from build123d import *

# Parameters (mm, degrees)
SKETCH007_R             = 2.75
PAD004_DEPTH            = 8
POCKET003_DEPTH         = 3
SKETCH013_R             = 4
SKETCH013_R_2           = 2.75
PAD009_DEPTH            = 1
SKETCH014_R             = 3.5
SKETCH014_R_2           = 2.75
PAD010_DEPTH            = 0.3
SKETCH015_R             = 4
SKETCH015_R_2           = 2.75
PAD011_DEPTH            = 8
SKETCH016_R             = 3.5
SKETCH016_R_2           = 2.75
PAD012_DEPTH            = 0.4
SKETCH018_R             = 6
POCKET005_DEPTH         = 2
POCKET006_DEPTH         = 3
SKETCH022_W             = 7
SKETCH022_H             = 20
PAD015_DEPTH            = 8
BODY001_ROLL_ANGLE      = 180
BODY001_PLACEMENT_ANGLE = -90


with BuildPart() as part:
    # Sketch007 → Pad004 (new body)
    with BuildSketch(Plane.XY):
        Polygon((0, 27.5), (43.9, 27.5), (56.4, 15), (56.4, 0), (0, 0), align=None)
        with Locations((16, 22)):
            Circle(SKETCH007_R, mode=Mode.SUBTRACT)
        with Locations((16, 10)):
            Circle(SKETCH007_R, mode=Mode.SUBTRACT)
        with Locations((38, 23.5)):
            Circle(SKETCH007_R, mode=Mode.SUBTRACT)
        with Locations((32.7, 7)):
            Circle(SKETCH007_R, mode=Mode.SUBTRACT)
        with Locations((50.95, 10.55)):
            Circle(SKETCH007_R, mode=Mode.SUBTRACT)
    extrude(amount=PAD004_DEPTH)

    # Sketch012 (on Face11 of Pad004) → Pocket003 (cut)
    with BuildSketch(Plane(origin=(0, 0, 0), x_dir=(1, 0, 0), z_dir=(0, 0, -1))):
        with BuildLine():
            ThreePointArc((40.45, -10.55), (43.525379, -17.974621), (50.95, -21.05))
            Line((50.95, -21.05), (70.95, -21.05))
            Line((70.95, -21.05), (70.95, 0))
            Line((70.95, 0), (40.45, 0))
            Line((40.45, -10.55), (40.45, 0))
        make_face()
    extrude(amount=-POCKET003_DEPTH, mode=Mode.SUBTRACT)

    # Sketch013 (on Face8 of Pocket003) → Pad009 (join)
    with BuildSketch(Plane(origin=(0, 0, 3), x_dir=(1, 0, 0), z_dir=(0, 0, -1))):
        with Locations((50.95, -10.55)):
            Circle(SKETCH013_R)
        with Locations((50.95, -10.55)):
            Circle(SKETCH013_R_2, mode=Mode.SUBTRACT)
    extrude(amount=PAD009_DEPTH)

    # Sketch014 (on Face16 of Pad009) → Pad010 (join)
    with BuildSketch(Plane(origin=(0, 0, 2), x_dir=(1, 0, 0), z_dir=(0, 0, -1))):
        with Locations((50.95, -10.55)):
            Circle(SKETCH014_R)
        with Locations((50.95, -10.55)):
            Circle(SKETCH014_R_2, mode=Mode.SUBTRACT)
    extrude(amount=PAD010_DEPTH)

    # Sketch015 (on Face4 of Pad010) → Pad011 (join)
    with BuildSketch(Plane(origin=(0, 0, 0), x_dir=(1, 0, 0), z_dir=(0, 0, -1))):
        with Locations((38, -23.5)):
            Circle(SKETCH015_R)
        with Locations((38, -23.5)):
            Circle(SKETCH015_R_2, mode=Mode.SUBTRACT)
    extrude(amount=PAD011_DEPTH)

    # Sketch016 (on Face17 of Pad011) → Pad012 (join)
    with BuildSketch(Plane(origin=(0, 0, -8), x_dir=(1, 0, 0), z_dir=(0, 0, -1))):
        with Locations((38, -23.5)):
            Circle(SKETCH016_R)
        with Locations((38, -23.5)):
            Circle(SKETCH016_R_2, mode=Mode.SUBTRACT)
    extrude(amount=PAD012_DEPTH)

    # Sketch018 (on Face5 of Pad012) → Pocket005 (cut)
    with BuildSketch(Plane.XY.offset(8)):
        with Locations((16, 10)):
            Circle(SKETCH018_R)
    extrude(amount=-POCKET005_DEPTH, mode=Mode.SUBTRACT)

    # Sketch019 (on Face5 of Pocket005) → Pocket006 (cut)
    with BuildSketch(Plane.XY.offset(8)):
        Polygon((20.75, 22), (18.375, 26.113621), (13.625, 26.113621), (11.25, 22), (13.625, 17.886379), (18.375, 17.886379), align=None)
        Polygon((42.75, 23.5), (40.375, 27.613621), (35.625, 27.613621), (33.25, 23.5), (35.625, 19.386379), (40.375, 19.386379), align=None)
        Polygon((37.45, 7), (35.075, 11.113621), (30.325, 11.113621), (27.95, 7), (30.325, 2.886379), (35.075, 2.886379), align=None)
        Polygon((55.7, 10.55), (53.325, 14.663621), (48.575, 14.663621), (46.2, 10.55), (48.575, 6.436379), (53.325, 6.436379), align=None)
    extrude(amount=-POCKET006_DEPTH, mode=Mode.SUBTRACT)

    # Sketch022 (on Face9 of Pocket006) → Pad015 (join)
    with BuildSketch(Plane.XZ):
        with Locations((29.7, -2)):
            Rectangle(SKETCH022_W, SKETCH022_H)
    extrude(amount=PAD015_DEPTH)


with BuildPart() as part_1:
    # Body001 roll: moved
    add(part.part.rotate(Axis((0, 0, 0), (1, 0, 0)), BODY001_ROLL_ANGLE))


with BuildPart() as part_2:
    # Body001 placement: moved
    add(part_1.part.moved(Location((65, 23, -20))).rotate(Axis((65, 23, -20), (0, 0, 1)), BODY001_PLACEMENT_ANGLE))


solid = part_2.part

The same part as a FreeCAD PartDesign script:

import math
import FreeCAD as App
import Part
import Sketcher

V = App.Vector
Q = App.Units.Quantity


def add_polygon(sketch, points):
    """Adds a closed chain of lines whose ends are joined by coincident constraints."""
    first, n = sketch.GeometryCount, len(points)
    for a, b in zip(points, points[1:] + points[:1]):
        sketch.addGeometry(Part.LineSegment(App.Vector(*a, 0), App.Vector(*b, 0)), False)
    for i in range(n):
        sketch.addConstraint(Sketcher.Constraint("Coincident", first + i, 2, first + (i + 1) % n, 1))

doc = App.newDocument("Part")
params = doc.addObject("Spreadsheet::Sheet", "Params")
for row, (alias, value) in enumerate([
    ("sketch1_diameter", "5.5 mm"),
    ("sketch1_height", "15 mm"),
    ("sketch1_width", "43.9 mm"),
    ("sketch1_width2", "56.4 mm"),
    ("pad1_length", "8 mm"),
    ("sketch2_radius", "10.500001 mm"),
    ("sketch2_width", "20 mm"),
    ("sketch2_height", "21.05 mm"),
    ("pocket1_length", "3 mm"),
    ("sketch3_diameter", "8 mm"),
    ("sketch3_diameter2", "5.5 mm"),
    ("pad2_length", "1 mm"),
    ("sketch4_diameter", "7 mm"),
    ("sketch4_diameter2", "5.5 mm"),
    ("pad3_length", "0.3 mm"),
    ("sketch5_diameter", "8 mm"),
    ("sketch5_diameter2", "5.5 mm"),
    ("pad4_length", "8 mm"),
    ("sketch6_diameter", "7 mm"),
    ("sketch6_diameter2", "5.5 mm"),
    ("pad5_length", "0.4 mm"),
    ("sketch7_diameter", "12 mm"),
    ("pocket2_length", "2 mm"),
    ("sketch8_width", "4.75 mm"),
    ("pocket3_length", "3 mm"),
    ("sketch9_width", "7 mm"),
    ("sketch9_height", "20 mm"),
    ("pad6_length", "8 mm"),
], start=1):
    params.set(f"A{row}", alias)
    params.set(f"B{row}", "=" + value)
    params.setAlias(f"B{row}", alias)

body = doc.addObject("PartDesign::Body", "Body")

# Sketch on XY plane
sketch1 = body.newObject("Sketcher::SketchObject", "Sketch")
sketch1.AttachmentSupport = (doc.getObject("XY_Plane"), [""])
sketch1.MapMode = "FlatFace"
add_polygon(sketch1, [(43.9, 27.5), (0, 27.5), (0, 0), (56.4, 0), (56.4, 15)])  # lines 0-4
sketch1.addGeometry(Part.Circle(V(51, 10.6, 0), V(0, 0, 1), 2.8), False)  # 5
sketch1.addGeometry(Part.Circle(V(32.7, 7, 0), V(0, 0, 1), 2.8), False)  # 6
sketch1.addGeometry(Part.Circle(V(16, 10, 0), V(0, 0, 1), 2.8), False)  # 7
sketch1.addGeometry(Part.Circle(V(38, 23.5, 0), V(0, 0, 1), 2.8), False)  # 8
sketch1.addGeometry(Part.Circle(V(16, 22, 0), V(0, 0, 1), 2.8), False)  # 9
sketch1.addConstraint([
    Sketcher.Constraint("Horizontal", 0),
    Sketcher.Constraint("Vertical", 1),
    Sketcher.Constraint("Horizontal", 2),
    Sketcher.Constraint("Vertical", 3),
    Sketcher.Constraint("Coincident", 1, 2, -1, 1),
    Sketcher.Constraint("Equal", 5, 6),
    Sketcher.Constraint("Equal", 6, 7),
    Sketcher.Constraint("Equal", 7, 8),
    Sketcher.Constraint("Equal", 8, 9),
    Sketcher.Constraint("Vertical", 7, 3, 9, 3),
    Sketcher.Constraint("Diameter", 5, 5.5),
    Sketcher.Constraint("DistanceY", 3, 1, 3, 2, 15.0),
    Sketcher.Constraint("Angle", 4, Q("135 deg")),
    Sketcher.Constraint("DistanceX", 0, 2, 0, 1, 43.9),
    Sketcher.Constraint("DistanceX", 2, 1, 2, 2, 56.4),
    Sketcher.Constraint("DistanceY", -1, 1, 6, 3, 7.0),
    Sketcher.Constraint("DistanceX", -1, 1, 7, 3, 16.0),
    Sketcher.Constraint("DistanceY", -1, 1, 7, 3, 10.0),
    Sketcher.Constraint("DistanceX", -1, 1, 8, 3, 38.0),
    Sketcher.Constraint("DistanceY", -1, 1, 9, 3, 22.0),
    Sketcher.Constraint("DistanceY", 8, 3, 0, 2, 4.0),
    Sketcher.Constraint("DistanceX", -1, 1, 6, 3, 32.7),
    Sketcher.Constraint("DistanceX", -1, 1, 5, 3, 50.95),
    Sketcher.Constraint("DistanceY", -1, 1, 5, 3, 10.55),
])
sketch1.setExpression("Constraints[15]", "Params.sketch1_diameter")
sketch1.setExpression("Constraints[16]", "Params.sketch1_height")
sketch1.setExpression("Constraints[18]", "Params.sketch1_width")
sketch1.setExpression("Constraints[19]", "Params.sketch1_width2")
pad1 = body.newObject("PartDesign::Pad", "Pad")
pad1.Profile = sketch1
pad1.setExpression("Length", "Params.pad1_length")

# Sketch on XY plane
sketch2 = body.newObject("Sketcher::SketchObject", "Sketch001")
sketch2.AttachmentSupport = (doc.getObject("XY_Plane"), [""])
sketch2.MapMode = "FlatFace"
sketch2.addGeometry([
    Part.ArcOfCircle(Part.Circle(V(51, 11, 0), V(0, 0, 1), 11), math.radians(90), math.radians(180)),  # 0
    Part.LineSegment(V(51, 21, 0), V(71, 21, 0)),  # 1
    Part.LineSegment(V(71, 21, 0), V(71, 0, 0)),  # 2
    Part.LineSegment(V(71, 0, 0), V(40, 0, 0)),  # 3
    Part.LineSegment(V(40, 0, 0), V(40, 11, 0)),  # 4
], False)
sketch2.addConstraint([
    Sketcher.Constraint("Tangent", 0, 1, 1, 1),
    Sketcher.Constraint("Coincident", 1, 2, 2, 1),
    Sketcher.Constraint("Coincident", 2, 2, 3, 1),
    Sketcher.Constraint("Coincident", 3, 2, 4, 1),
    Sketcher.Constraint("Tangent", 4, 2, 0, 2),
    Sketcher.Constraint("Horizontal", 1),
    Sketcher.Constraint("Vertical", 2),
    Sketcher.Constraint("Horizontal", 3),
    Sketcher.Constraint("Vertical", 4),
    Sketcher.Constraint("PointOnObject", 2, 2, -1),
    Sketcher.Constraint("Radius", 0, 10.500001),
    Sketcher.Constraint("DistanceX", 1, 1, 1, 2, 20.0),
    Sketcher.Constraint("DistanceY", 2, 2, 2, 1, 21.05),
    Sketcher.Constraint("DistanceX", -1, 1, 0, 3, 50.950001),
])
sketch2.setExpression("Constraints[10]", "Params.sketch2_radius")
sketch2.setExpression("Constraints[11]", "Params.sketch2_width")
sketch2.setExpression("Constraints[12]", "Params.sketch2_height")
pocket1 = body.newObject("PartDesign::Pocket", "Pocket")
pocket1.Profile = sketch2
pocket1.setExpression("Length", "Params.pocket1_length")
pocket1.Reversed = True

# Sketch on XY plane
sketch3 = body.newObject("Sketcher::SketchObject", "Sketch002")
sketch3.AttachmentSupport = (doc.getObject("XY_Plane"), [""])
sketch3.MapMode = "FlatFace"
sketch3.AttachmentOffset = App.Placement(V(0, 0, 3), App.Rotation())
sketch3.addGeometry([
    Part.Circle(V(51, 10.6, 0), V(0, 0, 1), 4),
    Part.Circle(V(51, 10.6, 0), V(0, 0, 1), 2.8),
], False)
sketch3.addConstraint([
    Sketcher.Constraint("Coincident", 1, 3, 0, 3),
    Sketcher.Constraint("Diameter", 0, 8.0),
    Sketcher.Constraint("Diameter", 1, 5.5),
    Sketcher.Constraint("DistanceX", -1, 1, 0, 3, 50.95),
    Sketcher.Constraint("DistanceY", -1, 1, 0, 3, 10.55),
])
sketch3.setExpression("Constraints[1]", "Params.sketch3_diameter")
sketch3.setExpression("Constraints[2]", "Params.sketch3_diameter2")
pad2 = body.newObject("PartDesign::Pad", "Pad001")
pad2.Profile = sketch3
pad2.setExpression("Length", "Params.pad2_length")
pad2.Reversed = True

# Sketch on XY plane
sketch4 = body.newObject("Sketcher::SketchObject", "Sketch003")
sketch4.AttachmentSupport = (doc.getObject("XY_Plane"), [""])
sketch4.MapMode = "FlatFace"
sketch4.AttachmentOffset = App.Placement(V(0, 0, 2), App.Rotation())
sketch4.addGeometry([
    Part.Circle(V(51, 10.6, 0), V(0, 0, 1), 3.5),
    Part.Circle(V(51, 10.6, 0), V(0, 0, 1), 2.8),
], False)
sketch4.addConstraint([
    Sketcher.Constraint("Coincident", 1, 3, 0, 3),
    Sketcher.Constraint("Diameter", 0, 7.0),
    Sketcher.Constraint("Diameter", 1, 5.5),
    Sketcher.Constraint("DistanceX", -1, 1, 0, 3, 50.95),
    Sketcher.Constraint("DistanceY", -1, 1, 0, 3, 10.55),
])
sketch4.setExpression("Constraints[1]", "Params.sketch4_diameter")
sketch4.setExpression("Constraints[2]", "Params.sketch4_diameter2")
pad3 = body.newObject("PartDesign::Pad", "Pad002")
pad3.Profile = sketch4
pad3.setExpression("Length", "Params.pad3_length")
pad3.Reversed = True

# Sketch on XY plane
sketch5 = body.newObject("Sketcher::SketchObject", "Sketch004")
sketch5.AttachmentSupport = (doc.getObject("XY_Plane"), [""])
sketch5.MapMode = "FlatFace"
sketch5.addGeometry([
    Part.Circle(V(38, 23.5, 0), V(0, 0, 1), 4),
    Part.Circle(V(38, 23.5, 0), V(0, 0, 1), 2.8),
], False)
sketch5.addConstraint([
    Sketcher.Constraint("Coincident", 1, 3, 0, 3),
    Sketcher.Constraint("Diameter", 0, 8.0),
    Sketcher.Constraint("Diameter", 1, 5.5),
    Sketcher.Constraint("DistanceX", -1, 1, 0, 3, 38.0),
    Sketcher.Constraint("DistanceY", -1, 1, 0, 3, 23.5),
])
sketch5.setExpression("Constraints[1]", "Params.sketch5_diameter")
sketch5.setExpression("Constraints[2]", "Params.sketch5_diameter2")
pad4 = body.newObject("PartDesign::Pad", "Pad003")
pad4.Profile = sketch5
pad4.setExpression("Length", "Params.pad4_length")
pad4.Reversed = True

# Sketch on XY plane
sketch6 = body.newObject("Sketcher::SketchObject", "Sketch005")
sketch6.AttachmentSupport = (doc.getObject("XY_Plane"), [""])
sketch6.MapMode = "FlatFace"
sketch6.AttachmentOffset = App.Placement(V(0, 0, -8), App.Rotation())
sketch6.addGeometry([
    Part.Circle(V(38, 23.5, 0), V(0, 0, 1), 3.5),
    Part.Circle(V(38, 23.5, 0), V(0, 0, 1), 2.8),
], False)
sketch6.addConstraint([
    Sketcher.Constraint("Coincident", 1, 3, 0, 3),
    Sketcher.Constraint("Diameter", 0, 7.0),
    Sketcher.Constraint("Diameter", 1, 5.5),
    Sketcher.Constraint("DistanceX", -1, 1, 0, 3, 38.0),
    Sketcher.Constraint("DistanceY", -1, 1, 0, 3, 23.5),
])
sketch6.setExpression("Constraints[1]", "Params.sketch6_diameter")
sketch6.setExpression("Constraints[2]", "Params.sketch6_diameter2")
pad5 = body.newObject("PartDesign::Pad", "Pad004")
pad5.Profile = sketch6
pad5.setExpression("Length", "Params.pad5_length")
pad5.Reversed = True

# Sketch on XY plane
sketch7 = body.newObject("Sketcher::SketchObject", "Sketch006")
sketch7.AttachmentSupport = (doc.getObject("XY_Plane"), [""])
sketch7.MapMode = "FlatFace"
sketch7.AttachmentOffset = App.Placement(V(0, 0, 8), App.Rotation())
sketch7.addGeometry(Part.Circle(V(16, 10, 0), V(0, 0, 1), 6), False)
sketch7.addConstraint([
    Sketcher.Constraint("Diameter", 0, 12.0),
    Sketcher.Constraint("DistanceX", -1, 1, 0, 3, 16.0),
    Sketcher.Constraint("DistanceY", -1, 1, 0, 3, 10.0),
])
sketch7.setExpression("Constraints[0]", "Params.sketch7_diameter")
pocket2 = body.newObject("PartDesign::Pocket", "Pocket001")
pocket2.Profile = sketch7
pocket2.setExpression("Length", "Params.pocket2_length")

# Sketch on XY plane
sketch8 = body.newObject("Sketcher::SketchObject", "Sketch007")
sketch8.AttachmentSupport = (doc.getObject("XY_Plane"), [""])
sketch8.MapMode = "FlatFace"
sketch8.AttachmentOffset = App.Placement(V(0, 0, 8), App.Rotation())
add_polygon(sketch8, [(20.8, 22), (18.4, 26.1), (13.6, 26.1), (11.2, 22), (13.6, 17.9), (18.4, 17.9)])  # lines 0-5
add_polygon(sketch8, [(42.8, 23.5), (40.4, 27.6), (35.6, 27.6), (33.2, 23.5), (35.6, 19.4), (40.4, 19.4)])  # lines 6-11
add_polygon(sketch8, [(37.5, 7), (35.1, 11.1), (30.3, 11.1), (27.9, 7), (30.3, 2.9), (35.1, 2.9)])  # lines 12-17
add_polygon(sketch8, [(55.7, 10.6), (53.3, 14.7), (48.6, 14.7), (46.2, 10.6), (48.6, 6.4), (53.3, 6.4)])  # lines 18-23
sketch8.addConstraint([
    Sketcher.Constraint("Horizontal", 1),
    Sketcher.Constraint("Horizontal", 4),
    Sketcher.Constraint("Horizontal", 7),
    Sketcher.Constraint("Horizontal", 10),
    Sketcher.Constraint("Horizontal", 13),
    Sketcher.Constraint("Horizontal", 16),
    Sketcher.Constraint("Horizontal", 19),
    Sketcher.Constraint("Horizontal", 22),
    Sketcher.Constraint("Parallel", 0, 3),
    Sketcher.Constraint("Parallel", 2, 5),
    Sketcher.Constraint("Parallel", 3, 6),
    Sketcher.Constraint("Parallel", 5, 8),
    Sketcher.Constraint("Parallel", 6, 9),
    Sketcher.Constraint("Parallel", 8, 11),
    Sketcher.Constraint("Parallel", 9, 12),
    Sketcher.Constraint("Parallel", 11, 14),
    Sketcher.Constraint("Parallel", 12, 15),
    Sketcher.Constraint("Parallel", 14, 17),
    Sketcher.Constraint("Parallel", 15, 18),
    Sketcher.Constraint("Parallel", 17, 20),
    Sketcher.Constraint("Parallel", 18, 21),
    Sketcher.Constraint("Parallel", 20, 23),
    Sketcher.Constraint("Horizontal", 2, 2, 5, 2),
    Sketcher.Constraint("Horizontal", 8, 2, 11, 2),
    Sketcher.Constraint("Horizontal", 14, 2, 17, 2),
    Sketcher.Constraint("Horizontal", 20, 2, 23, 2),
    Sketcher.Constraint("Vertical", 1, 2, 3, 2),
    Sketcher.Constraint("Vertical", 0, 2, 4, 2),
    Sketcher.Constraint("Vertical", 7, 2, 9, 2),
    Sketcher.Constraint("Vertical", 13, 2, 15, 2),
    Sketcher.Constraint("Vertical", 19, 2, 21, 2),
    Sketcher.Constraint("Equal", 4, 7),
    Sketcher.Constraint("Equal", 10, 13),
    Sketcher.Constraint("Equal", 16, 19),
    Sketcher.Constraint("Equal", 5, 6),
    Sketcher.Constraint("Equal", 11, 12),
    Sketcher.Constraint("Equal", 17, 18),
    Sketcher.Constraint("Angle", 0, Q("119.999998 deg")),
    Sketcher.Constraint("DistanceY", -1, 1, 2, 2, 22.0),
    Sketcher.Constraint("DistanceY", -1, 1, 14, 2, 7.0),
    Sketcher.Constraint("DistanceX", 0, 2, 6, 2, 22.0),
    Sketcher.Constraint("DistanceX", 1, 2, 1, 1, 4.75),
    Sketcher.Constraint("DistanceY", -1, 1, 8, 2, 23.5),
    Sketcher.Constraint("DistanceX", -1, 1, 20, 2, 46.2),
    Sketcher.Constraint("DistanceX", -1, 1, 23, 2, 55.7),
    Sketcher.Constraint("DistanceX", 12, 2, 10, 2, 5.3),
    Sketcher.Constraint("DistanceX", 9, 2, 18, 2, 17.7),
    Sketcher.Constraint("DistanceY", -1, 1, 20, 2, 10.55),
])
sketch8.setExpression("Constraints[65]", "Params.sketch8_width")
pocket3 = body.newObject("PartDesign::Pocket", "Pocket002")
pocket3.Profile = sketch8
pocket3.setExpression("Length", "Params.pocket3_length")

# Sketch on XZ plane
sketch9 = body.newObject("Sketcher::SketchObject", "Sketch008")
sketch9.AttachmentSupport = (doc.getObject("XZ_Plane"), [""])
sketch9.MapMode = "FlatFace"
add_polygon(sketch9, [(26, 8), (26, -12), (33, -12), (33, 8)])  # lines 0-3
sketch9.addConstraint([
    Sketcher.Constraint("Vertical", 0),
    Sketcher.Constraint("Horizontal", 1),
    Sketcher.Constraint("Vertical", 2),
    Sketcher.Constraint("Horizontal", 3),
    Sketcher.Constraint("DistanceX", 1, 1, 1, 2, 7.0),
    Sketcher.Constraint("DistanceY", 0, 2, 0, 1, 20.0),
    Sketcher.Constraint("DistanceY", 0, 2, -1, 1, 12.0),
    Sketcher.Constraint("DistanceX", -1, 1, 0, 2, 26.2),
])
sketch9.setExpression("Constraints[8]", "Params.sketch9_width")
sketch9.setExpression("Constraints[9]", "Params.sketch9_height")
pad6 = body.newObject("PartDesign::Pad", "Pad005")
pad6.Profile = sketch9
pad6.setExpression("Length", "Params.pad6_length")
body2 = doc.addObject("PartDesign::Body", "Body001")
doc.recompute()

body.Placement = App.Placement(V(0, 0, 0), App.Rotation(V(1, 0, 0), 180))
boolean = body2.newObject("PartDesign::Boolean", "Boolean")
boolean.Type = "Fuse"
boolean.addObjects([body])
body3 = doc.addObject("PartDesign::Body", "Body002")
doc.recompute()

body2.Placement = App.Placement(V(65, 23, -20), App.Rotation(V(0, 0, 1), 270))
boolean2 = body3.newObject("PartDesign::Boolean", "Boolean001")
boolean2.Type = "Fuse"
boolean2.addObjects([body2])

doc.recompute()
